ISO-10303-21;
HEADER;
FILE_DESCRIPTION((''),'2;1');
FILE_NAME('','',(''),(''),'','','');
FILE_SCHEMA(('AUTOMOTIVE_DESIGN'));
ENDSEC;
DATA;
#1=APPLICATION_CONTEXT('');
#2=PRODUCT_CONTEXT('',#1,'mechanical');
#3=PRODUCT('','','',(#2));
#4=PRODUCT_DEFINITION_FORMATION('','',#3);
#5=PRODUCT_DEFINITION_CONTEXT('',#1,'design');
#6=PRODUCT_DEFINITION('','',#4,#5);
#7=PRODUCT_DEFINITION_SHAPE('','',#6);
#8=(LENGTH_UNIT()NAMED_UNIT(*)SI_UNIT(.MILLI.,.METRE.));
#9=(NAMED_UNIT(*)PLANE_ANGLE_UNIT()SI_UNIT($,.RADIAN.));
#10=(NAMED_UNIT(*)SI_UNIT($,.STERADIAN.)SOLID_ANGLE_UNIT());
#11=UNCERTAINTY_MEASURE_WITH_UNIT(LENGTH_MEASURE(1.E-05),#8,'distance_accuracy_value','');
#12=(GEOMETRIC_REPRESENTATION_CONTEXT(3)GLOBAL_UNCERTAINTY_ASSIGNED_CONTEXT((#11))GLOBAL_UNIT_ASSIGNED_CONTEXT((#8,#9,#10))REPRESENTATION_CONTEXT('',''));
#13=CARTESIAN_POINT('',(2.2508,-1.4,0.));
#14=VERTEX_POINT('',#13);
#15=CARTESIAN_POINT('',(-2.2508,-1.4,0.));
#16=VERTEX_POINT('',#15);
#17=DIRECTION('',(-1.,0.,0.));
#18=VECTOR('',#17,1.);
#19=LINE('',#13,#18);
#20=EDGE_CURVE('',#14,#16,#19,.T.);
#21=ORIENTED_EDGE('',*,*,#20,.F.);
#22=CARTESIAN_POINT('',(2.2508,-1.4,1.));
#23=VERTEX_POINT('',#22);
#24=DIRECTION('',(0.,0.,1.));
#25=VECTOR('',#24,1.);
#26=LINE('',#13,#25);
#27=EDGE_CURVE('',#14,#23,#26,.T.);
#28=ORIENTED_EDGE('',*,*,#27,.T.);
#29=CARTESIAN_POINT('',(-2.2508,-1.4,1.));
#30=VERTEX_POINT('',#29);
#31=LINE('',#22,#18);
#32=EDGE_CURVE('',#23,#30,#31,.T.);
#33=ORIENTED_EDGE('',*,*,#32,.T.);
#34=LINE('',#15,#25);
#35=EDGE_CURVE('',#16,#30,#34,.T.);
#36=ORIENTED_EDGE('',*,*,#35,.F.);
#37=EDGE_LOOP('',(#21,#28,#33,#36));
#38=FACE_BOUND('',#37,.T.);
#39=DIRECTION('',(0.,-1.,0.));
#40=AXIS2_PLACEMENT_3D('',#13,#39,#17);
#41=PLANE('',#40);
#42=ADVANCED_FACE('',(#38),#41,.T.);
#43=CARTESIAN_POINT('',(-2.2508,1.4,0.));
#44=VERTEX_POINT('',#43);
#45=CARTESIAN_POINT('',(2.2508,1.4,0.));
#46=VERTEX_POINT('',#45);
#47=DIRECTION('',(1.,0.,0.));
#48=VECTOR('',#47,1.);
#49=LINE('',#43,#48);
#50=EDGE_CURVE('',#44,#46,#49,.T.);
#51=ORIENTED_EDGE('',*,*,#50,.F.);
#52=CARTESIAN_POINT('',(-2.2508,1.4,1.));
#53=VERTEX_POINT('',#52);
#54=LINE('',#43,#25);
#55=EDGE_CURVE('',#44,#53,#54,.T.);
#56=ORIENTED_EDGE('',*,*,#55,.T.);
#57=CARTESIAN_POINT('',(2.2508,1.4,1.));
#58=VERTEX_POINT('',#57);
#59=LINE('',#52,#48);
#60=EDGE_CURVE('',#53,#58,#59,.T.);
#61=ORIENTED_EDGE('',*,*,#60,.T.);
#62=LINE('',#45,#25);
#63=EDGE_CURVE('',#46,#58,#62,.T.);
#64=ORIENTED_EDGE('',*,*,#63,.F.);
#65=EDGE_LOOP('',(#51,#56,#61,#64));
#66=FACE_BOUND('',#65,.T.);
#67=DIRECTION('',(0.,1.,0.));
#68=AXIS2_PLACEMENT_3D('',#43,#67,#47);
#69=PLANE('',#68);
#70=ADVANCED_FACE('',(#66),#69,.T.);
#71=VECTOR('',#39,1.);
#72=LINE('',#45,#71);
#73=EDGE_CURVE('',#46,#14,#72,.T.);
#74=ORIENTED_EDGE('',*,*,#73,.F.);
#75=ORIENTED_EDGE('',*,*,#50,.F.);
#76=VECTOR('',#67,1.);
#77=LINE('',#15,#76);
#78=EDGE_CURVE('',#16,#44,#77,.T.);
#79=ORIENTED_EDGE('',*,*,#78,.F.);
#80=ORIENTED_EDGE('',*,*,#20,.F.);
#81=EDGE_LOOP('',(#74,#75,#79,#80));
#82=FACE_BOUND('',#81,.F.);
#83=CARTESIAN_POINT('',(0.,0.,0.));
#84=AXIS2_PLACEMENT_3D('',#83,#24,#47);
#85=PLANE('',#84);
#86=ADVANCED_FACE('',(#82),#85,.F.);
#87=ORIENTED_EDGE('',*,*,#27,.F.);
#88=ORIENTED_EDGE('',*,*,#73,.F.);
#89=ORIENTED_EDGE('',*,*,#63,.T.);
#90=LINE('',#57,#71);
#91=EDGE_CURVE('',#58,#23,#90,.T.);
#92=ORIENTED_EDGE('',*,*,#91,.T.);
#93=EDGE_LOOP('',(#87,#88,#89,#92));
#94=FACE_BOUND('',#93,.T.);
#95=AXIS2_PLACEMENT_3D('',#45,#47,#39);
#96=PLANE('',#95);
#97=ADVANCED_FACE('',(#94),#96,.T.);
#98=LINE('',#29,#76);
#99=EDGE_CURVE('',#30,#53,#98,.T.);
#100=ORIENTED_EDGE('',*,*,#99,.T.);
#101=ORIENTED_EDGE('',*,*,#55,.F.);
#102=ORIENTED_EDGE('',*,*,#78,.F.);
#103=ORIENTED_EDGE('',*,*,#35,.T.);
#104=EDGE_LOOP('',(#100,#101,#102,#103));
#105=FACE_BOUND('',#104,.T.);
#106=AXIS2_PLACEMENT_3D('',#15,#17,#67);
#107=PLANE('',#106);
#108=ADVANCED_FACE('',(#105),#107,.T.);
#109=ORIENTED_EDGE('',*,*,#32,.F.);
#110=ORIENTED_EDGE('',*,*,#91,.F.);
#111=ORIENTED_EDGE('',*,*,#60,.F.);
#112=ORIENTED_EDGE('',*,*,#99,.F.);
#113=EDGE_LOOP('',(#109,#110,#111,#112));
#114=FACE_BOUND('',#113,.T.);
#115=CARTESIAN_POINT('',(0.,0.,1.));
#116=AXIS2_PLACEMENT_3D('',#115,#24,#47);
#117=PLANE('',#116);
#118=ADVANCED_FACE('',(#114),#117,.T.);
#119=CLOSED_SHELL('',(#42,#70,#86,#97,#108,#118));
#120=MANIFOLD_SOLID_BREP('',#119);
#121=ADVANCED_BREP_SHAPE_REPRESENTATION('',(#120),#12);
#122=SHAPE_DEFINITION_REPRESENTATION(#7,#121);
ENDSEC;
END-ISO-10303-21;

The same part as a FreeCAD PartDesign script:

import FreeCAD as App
import Part
import Sketcher
Q = App.Units.Quantity

doc = App.newDocument("Part")
body = doc.addObject("PartDesign::Body", "Body")

# Sketch on XY plane
sketch1 = body.newObject("Sketcher::SketchObject", "Sketch")
sketch1.AttachmentSupport = (doc.getObject("XY_Plane"), [""])
sketch1.MapMode = "FlatFace"
sketch1.addGeometry(Part.LineSegment(App.Vector(2.2508, 1.4, 0), App.Vector(-2.2508, 1.4, 0)), False)
sketch1.addGeometry(Part.LineSegment(App.Vector(-2.2508, 1.4, 0), App.Vector(-2.2508, -1.4, 0)), False)
sketch1.addGeometry(Part.LineSegment(App.Vector(-2.2508, -1.4, 0), App.Vector(2.2508, -1.4, 0)), False)
sketch1.addGeometry(Part.LineSegment(App.Vector(2.2508, -1.4, 0), App.Vector(2.2508, 1.4, 0)), False)
sketch1.addConstraint(Sketcher.Constraint("Coincident", 0, 2, 1, 1))
sketch1.addConstraint(Sketcher.Constraint("Coincident", 1, 2, 2, 1))
sketch1.addConstraint(Sketcher.Constraint("Coincident", 2, 2, 3, 1))
sketch1.addConstraint(Sketcher.Constraint("Coincident", 3, 2, 0, 1))
sketch1.addConstraint(Sketcher.Constraint("Horizontal", 0))
sketch1.addConstraint(Sketcher.Constraint("Vertical", 1))
sketch1.addConstraint(Sketcher.Constraint("Horizontal", 2))
sketch1.addConstraint(Sketcher.Constraint("Vertical", 3))
sketch1.addConstraint(Sketcher.Constraint("Symmetric", 0, 2, 2, 2, -1, 1))
sketch1.addConstraint(Sketcher.Constraint("DistanceY", 1, 2, 1, 1, Q("2.8 mm")))
sketch1.addConstraint(Sketcher.Constraint("DistanceX", 0, 2, 0, 1, Q("4.5016 mm")))
pad1 = body.newObject("PartDesign::Pad", "Pad")
pad1.Profile = sketch1
pad1.Length = 1

doc.recompute()
